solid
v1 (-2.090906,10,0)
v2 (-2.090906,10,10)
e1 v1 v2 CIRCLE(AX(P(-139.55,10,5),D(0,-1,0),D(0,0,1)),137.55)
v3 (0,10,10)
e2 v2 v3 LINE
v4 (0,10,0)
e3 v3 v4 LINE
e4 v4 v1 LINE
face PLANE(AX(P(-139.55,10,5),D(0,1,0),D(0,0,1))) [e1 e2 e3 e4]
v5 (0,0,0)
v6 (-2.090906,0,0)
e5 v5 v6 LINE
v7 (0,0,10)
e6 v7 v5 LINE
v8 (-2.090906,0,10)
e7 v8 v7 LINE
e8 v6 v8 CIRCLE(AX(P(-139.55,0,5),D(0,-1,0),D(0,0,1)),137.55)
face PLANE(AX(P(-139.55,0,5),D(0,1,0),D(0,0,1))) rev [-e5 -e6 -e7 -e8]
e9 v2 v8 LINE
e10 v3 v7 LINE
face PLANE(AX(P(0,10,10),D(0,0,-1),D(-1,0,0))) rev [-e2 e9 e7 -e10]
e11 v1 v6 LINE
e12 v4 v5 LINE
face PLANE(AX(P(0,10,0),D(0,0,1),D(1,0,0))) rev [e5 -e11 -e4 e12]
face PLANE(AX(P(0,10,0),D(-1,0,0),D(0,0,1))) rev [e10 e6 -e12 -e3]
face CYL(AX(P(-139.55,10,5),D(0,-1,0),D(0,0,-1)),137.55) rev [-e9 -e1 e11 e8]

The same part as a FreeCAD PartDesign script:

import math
import FreeCAD as App
import Part
import Sketcher
Q = App.Units.Quantity

doc = App.newDocument("Part")
body = doc.addObject("PartDesign::Body", "Body")

# Sketch on XZ plane
sketch1 = body.newObject("Sketcher::SketchObject", "Sketch")
sketch1.AttachmentSupport = (doc.getObject("XZ_Plane"), [""])
sketch1.MapMode = "FlatFace"
sketch1.addGeometry(Part.LineSegment(App.Vector(0, 10, 0), App.Vector(0, 0, 0)), False)
sketch1.addGeometry(Part.LineSegment(App.Vector(0, 0, 0), App.Vector(-2.090906, 0, 0)), False)
sketch1.addGeometry(Part.ArcOfCircle(Part.Circle(App.Vector(-139.55, 5, 0), App.Vector(0, 0, 1), 137.55), math.radians(-2.083184), math.radians(2.083184)), False)
sketch1.addGeometry(Part.LineSegment(App.Vector(-2.090906, 10, 0), App.Vector(0, 10, 0)), False)
sketch1.addConstraint(Sketcher.Constraint("Coincident", 0, 2, 1, 1))
sketch1.addConstraint(Sketcher.Constraint("Coincident", 1, 2, 2, 1))
sketch1.addConstraint(Sketcher.Constraint("Coincident", 2, 2, 3, 1))
sketch1.addConstraint(Sketcher.Constraint("Coincident", 3, 2, 0, 1))
sketch1.addConstraint(Sketcher.Constraint("Vertical", 0))
sketch1.addConstraint(Sketcher.Constraint("Horizontal", 1))
sketch1.addConstraint(Sketcher.Constraint("Horizontal", 3))
sketch1.addConstraint(Sketcher.Constraint("Coincident", 0, 2, -1, 1))
sketch1.addConstraint(Sketcher.Constraint("Vertical", 1, 2, 2, 2))
sketch1.addConstraint(Sketcher.Constraint("DistanceY", 0, 2, 0, 1, Q("10 mm")))
sketch1.addConstraint(Sketcher.Constraint("Radius", 2, Q("137.55 mm")))
sketch1.addConstraint(Sketcher.Constraint("DistanceX", 2, 3, -1, 1, Q("139.55 mm")))
pad1 = body.newObject("PartDesign::Pad", "Pad")
pad1.Profile = sketch1
pad1.Length = 10
pad1.Reversed = True

doc.recompute()
